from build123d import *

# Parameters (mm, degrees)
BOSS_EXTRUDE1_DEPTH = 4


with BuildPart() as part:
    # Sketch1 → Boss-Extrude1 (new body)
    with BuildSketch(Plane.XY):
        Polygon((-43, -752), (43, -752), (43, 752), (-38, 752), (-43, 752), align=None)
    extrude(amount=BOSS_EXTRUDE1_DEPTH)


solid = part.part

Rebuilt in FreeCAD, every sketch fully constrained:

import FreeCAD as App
import Part
import Sketcher
from FreeCAD import Vector
Q = App.Units.Quantity


def add_polygon(sketch, points):
    """Adds a closed chain of lines whose ends are joined by coincident constraints."""
    first, n = sketch.GeometryCount, len(points)
    for a, b in zip(points, points[1:] + points[:1]):
        sketch.addGeometry(Part.LineSegment(App.Vector(*a, 0), App.Vector(*b, 0)), False)
    for i in range(n):
        sketch.addConstraint(Sketcher.Constraint("Coincident", first + i, 2, first + (i + 1) % n, 1))

doc = App.newDocument("Part")
body = doc.addObject("PartDesign::Body", "Body")

# Sketch on XY plane
sketch1 = body.newObject("Sketcher::SketchObject", "Sketch")
sketch1.AttachmentSupport = (doc.getObject("XY_Plane"), [""])
sketch1.MapMode = "FlatFace"
add_polygon(sketch1, [(-43, -752), (43, -752), (43, 752), (-43, 752)])  # lines 0-3
sketch1.addConstraint([
    Sketcher.Constraint("Horizontal", 0),
    Sketcher.Constraint("Vertical", 1),
    Sketcher.Constraint("Horizontal", 2),
    Sketcher.Constraint("Vertical", 3),
    Sketcher.Constraint("Symmetric", 0, 2, 2, 2, -1, 1),
    Sketcher.Constraint("DistanceX", 0, 1, 0, 2, Q("86 mm")),
    Sketcher.Constraint("DistanceY", 1, 1, 1, 2, Q("1504 mm")),
])
pad1 = body.newObject("PartDesign::Pad", "Pad")
pad1.Profile = sketch1
pad1.Length = 4

doc.recompute()
